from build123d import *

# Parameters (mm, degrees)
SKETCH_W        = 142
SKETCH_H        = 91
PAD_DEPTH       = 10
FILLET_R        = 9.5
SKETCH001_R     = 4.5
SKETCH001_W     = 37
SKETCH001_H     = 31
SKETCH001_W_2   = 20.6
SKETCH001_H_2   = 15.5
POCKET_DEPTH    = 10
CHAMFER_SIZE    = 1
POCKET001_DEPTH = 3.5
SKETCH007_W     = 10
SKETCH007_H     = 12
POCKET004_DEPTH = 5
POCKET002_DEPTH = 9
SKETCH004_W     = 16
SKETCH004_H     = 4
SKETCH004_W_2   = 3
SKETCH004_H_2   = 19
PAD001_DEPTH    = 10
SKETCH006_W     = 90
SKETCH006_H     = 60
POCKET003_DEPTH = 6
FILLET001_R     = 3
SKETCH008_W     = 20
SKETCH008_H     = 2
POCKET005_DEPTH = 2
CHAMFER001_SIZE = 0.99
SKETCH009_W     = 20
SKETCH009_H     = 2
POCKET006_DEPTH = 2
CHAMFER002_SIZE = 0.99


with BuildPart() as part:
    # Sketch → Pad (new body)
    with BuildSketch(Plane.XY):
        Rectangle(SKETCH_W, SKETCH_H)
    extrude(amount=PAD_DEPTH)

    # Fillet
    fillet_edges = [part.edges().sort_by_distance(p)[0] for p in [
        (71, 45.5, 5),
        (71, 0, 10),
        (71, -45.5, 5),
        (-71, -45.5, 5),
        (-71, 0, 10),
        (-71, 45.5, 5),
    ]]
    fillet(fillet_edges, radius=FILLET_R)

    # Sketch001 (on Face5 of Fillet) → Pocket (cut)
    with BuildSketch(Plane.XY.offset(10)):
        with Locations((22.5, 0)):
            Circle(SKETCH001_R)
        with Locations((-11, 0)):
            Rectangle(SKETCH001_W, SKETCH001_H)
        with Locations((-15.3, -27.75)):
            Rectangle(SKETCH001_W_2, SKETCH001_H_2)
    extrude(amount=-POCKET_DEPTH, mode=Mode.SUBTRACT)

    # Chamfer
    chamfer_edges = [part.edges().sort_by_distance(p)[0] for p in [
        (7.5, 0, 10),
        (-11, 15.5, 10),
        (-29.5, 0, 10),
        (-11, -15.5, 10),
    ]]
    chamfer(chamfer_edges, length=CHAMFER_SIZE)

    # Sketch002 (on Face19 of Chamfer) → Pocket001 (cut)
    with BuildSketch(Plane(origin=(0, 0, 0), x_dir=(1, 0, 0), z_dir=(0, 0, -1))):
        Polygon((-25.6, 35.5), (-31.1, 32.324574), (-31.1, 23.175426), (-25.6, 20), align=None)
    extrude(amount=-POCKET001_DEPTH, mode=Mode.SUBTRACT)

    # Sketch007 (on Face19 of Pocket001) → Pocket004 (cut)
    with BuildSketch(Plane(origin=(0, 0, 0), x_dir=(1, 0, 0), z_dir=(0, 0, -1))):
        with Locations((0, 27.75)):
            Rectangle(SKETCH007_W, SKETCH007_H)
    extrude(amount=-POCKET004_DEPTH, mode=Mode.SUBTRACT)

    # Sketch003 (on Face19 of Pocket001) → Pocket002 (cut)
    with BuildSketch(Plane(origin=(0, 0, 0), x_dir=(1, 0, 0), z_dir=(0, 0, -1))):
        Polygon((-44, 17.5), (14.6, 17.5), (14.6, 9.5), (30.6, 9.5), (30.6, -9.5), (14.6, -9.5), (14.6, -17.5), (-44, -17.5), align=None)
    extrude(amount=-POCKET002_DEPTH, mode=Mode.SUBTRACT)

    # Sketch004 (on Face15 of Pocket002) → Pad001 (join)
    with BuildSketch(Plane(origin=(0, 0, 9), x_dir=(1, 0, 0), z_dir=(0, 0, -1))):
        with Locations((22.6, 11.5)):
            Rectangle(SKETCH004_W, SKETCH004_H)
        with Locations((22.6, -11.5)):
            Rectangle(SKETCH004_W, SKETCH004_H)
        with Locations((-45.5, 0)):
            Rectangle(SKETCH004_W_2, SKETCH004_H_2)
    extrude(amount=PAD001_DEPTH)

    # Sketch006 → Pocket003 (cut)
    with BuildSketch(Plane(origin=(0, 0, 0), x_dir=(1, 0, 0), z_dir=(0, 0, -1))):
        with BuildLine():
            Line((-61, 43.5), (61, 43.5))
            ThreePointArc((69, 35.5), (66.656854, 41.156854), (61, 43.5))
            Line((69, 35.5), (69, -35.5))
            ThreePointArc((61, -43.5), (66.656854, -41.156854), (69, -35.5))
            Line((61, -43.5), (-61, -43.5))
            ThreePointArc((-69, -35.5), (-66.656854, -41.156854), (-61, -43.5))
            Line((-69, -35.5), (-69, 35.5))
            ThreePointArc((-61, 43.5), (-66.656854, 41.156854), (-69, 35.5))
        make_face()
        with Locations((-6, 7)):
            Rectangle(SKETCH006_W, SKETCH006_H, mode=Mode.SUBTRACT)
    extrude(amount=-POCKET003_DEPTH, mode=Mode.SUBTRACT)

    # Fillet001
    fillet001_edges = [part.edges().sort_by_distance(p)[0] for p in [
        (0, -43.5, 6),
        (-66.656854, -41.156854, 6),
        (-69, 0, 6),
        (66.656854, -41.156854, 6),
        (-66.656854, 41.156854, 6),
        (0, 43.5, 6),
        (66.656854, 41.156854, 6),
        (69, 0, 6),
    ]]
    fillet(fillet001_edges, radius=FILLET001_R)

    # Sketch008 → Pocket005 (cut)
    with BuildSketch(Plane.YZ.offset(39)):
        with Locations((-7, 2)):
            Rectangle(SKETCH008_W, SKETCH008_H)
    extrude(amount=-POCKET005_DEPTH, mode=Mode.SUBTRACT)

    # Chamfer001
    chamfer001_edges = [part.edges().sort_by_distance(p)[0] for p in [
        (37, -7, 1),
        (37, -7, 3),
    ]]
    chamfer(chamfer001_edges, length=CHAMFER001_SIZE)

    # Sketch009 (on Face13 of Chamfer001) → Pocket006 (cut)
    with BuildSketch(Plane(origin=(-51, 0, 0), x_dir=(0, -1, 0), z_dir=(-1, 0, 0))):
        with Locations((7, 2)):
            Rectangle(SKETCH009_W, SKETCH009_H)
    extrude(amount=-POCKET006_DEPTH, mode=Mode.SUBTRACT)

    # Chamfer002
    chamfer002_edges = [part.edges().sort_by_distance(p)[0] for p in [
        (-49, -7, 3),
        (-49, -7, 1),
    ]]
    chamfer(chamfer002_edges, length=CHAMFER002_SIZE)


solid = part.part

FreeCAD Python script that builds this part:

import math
import FreeCAD as App
import Part
import Sketcher
from FreeCAD import Vector
Q = App.Units.Quantity


def edges_at(feature, points):
    """Names of the edges that pass closest to the given points."""
    edges = feature.Shape.Edges
    near = lambda p: min(range(len(edges)), key=lambda i: edges[i].distToShape(Part.Vertex(*p))[0])
    return sorted({f"Edge{near(p) + 1}" for p in points})


def add_polygon(sketch, points):
    """Adds a closed chain of lines whose ends are joined by coincident constraints."""
    first, n = sketch.GeometryCount, len(points)
    for a, b in zip(points, points[1:] + points[:1]):
        sketch.addGeometry(Part.LineSegment(App.Vector(*a, 0), App.Vector(*b, 0)), False)
    for i in range(n):
        sketch.addConstraint(Sketcher.Constraint("Coincident", first + i, 2, first + (i + 1) % n, 1))

doc = App.newDocument("Part")
body = doc.addObject("PartDesign::Body", "Body")

# Sketch on XY plane
sketch1 = body.newObject("Sketcher::SketchObject", "Sketch")
sketch1.AttachmentSupport = (doc.getObject("XY_Plane"), [""])
sketch1.MapMode = "FlatFace"
add_polygon(sketch1, [(-71, 46), (-71, -46), (71, -46), (71, 46)])  # lines 0-3
sketch1.addConstraint([
    Sketcher.Constraint("Vertical", 0),
    Sketcher.Constraint("Horizontal", 1),
    Sketcher.Constraint("Vertical", 2),
    Sketcher.Constraint("Horizontal", 3),
    Sketcher.Constraint("Symmetric", 0, 2, 2, 2, -1, 1),
    Sketcher.Constraint("DistanceX", 1, 1, 1, 2, 142.0),
    Sketcher.Constraint("DistanceY", 0, 2, 0, 1, 91.0),
])
pad1 = body.newObject("PartDesign::Pad", "Pad")
pad1.Profile = sketch1
pad1.Length = 10
doc.recompute()

fillet = body.newObject("PartDesign::Fillet", "Fillet")
fillet.Base = (pad1, edges_at(pad1, [
    (71, 45.5, 5),
    (71, 0, 10),
    (71, -45.5, 5),
    (-71, -45.5, 5),
    (-71, 0, 10),
    (-71, 45.5, 5),
]))
fillet.Radius = 9.5

# Sketch on XY plane
sketch2 = body.newObject("Sketcher::SketchObject", "Sketch001")
sketch2.AttachmentSupport = (doc.getObject("XY_Plane"), [""])
sketch2.MapMode = "FlatFace"
sketch2.AttachmentOffset = App.Placement(Vector(0, 0, 10), App.Rotation())
sketch2.addGeometry(Part.Circle(Vector(22.5, 0, 0), Vector(0, 0, 1), 4.5), False)  # 0
add_polygon(sketch2, [(-29.5, 15.5), (-29.5, -15.5), (7.5, -15.5), (7.5, 15.5)])  # lines 1-4
add_polygon(sketch2, [(-25.6, -20), (-25.6, -35.5), (-5, -35.5), (-5, -20)])  # lines 5-8
sketch2.addConstraint([
    Sketcher.Constraint("Vertical", 1),
    Sketcher.Constraint("Horizontal", 2),
    Sketcher.Constraint("Vertical", 3),
    Sketcher.Constraint("Horizontal", 4),
    Sketcher.Constraint("Vertical", 5),
    Sketcher.Constraint("Horizontal", 6),
    Sketcher.Constraint("Vertical", 7),
    Sketcher.Constraint("Horizontal", 8),
    Sketcher.Constraint("PointOnObject", 0, 3, -1),
    Sketcher.Constraint("Diameter", 0, 9.0),
    Sketcher.Constraint("DistanceX", 2, 1, 2, 2, 37.0),
    Sketcher.Constraint("DistanceY", 1, 2, 1, 1, 31.0),
    Sketcher.Constraint("DistanceX", 6, 1, 6, 2, 20.6),
    Sketcher.Constraint("DistanceY", 5, 2, 5, 1, 15.5),
    Sketcher.Constraint("DistanceX", 6, 2, -1, 1, 5.0),
    Sketcher.Constraint("DistanceY", 7, 2, -1, 1, 20.0),
    Sketcher.Constraint("DistanceX", 1, 2, 0, 3, 52.0),
    Sketcher.Constraint("DistanceY", 5, 2, 1, 2, 20.0),
    Sketcher.Constraint("DistanceX", -1, 1, 0, 3, 22.5),
])
pocket1 = body.newObject("PartDesign::Pocket", "Pocket")
pocket1.Profile = sketch2
pocket1.Length = 10
doc.recompute()

chamfer = body.newObject("PartDesign::Chamfer", "Chamfer")
chamfer.Base = (pocket1, edges_at(pocket1, [
    (7.5, 0, 10),
    (-11, 15.5, 10),
    (-29.5, 0, 10),
    (-11, -15.5, 10),
]))
chamfer.Size = 1

# Sketch on XY plane
sketch3 = body.newObject("Sketcher::SketchObject", "Sketch002")
sketch3.AttachmentSupport = (doc.getObject("XY_Plane"), [""])
sketch3.MapMode = "FlatFace"
add_polygon(sketch3, [(-26, -36), (-31, -32), (-31, -23), (-26, -20)])  # lines 0-3
sketch3.addConstraint([
    Sketcher.Constraint("Vertical", 1),
    Sketcher.Constraint("Vertical", 3),
    Sketcher.Constraint("Equal", 0, 2),
    Sketcher.Constraint("Angle", 0, Q("150.000004 deg")),
    Sketcher.Constraint("DistanceY", 3, 2, 3, 1, 15.5),
    Sketcher.Constraint("DistanceY", 2, 2, -1, 1, 20.0),
    Sketcher.Constraint("DistanceX", 0, 2, -1, 1, 31.1),
    Sketcher.Constraint("DistanceX", 2, 2, -1, 1, 25.6),
])
pocket2 = body.newObject("PartDesign::Pocket", "Pocket001")
pocket2.Profile = sketch3
pocket2.Length = 3.5
pocket2.Reversed = True

# Sketch on XY plane
sketch4 = body.newObject("Sketcher::SketchObject", "Sketch003")
sketch4.AttachmentSupport = (doc.getObject("XY_Plane"), [""])
sketch4.MapMode = "FlatFace"
add_polygon(sketch4, [(-5, -34), (-5, -22), (5, -22), (5, -34)])  # lines 0-3
sketch4.addConstraint([
    Sketcher.Constraint("Vertical", 0),
    Sketcher.Constraint("Horizontal", 1),
    Sketcher.Constraint("Vertical", 2),
    Sketcher.Constraint("Horizontal", 3),
    Sketcher.Constraint("DistanceX", 1, 1, 1, 2, 10.0),
    Sketcher.Constraint("DistanceY", 0, 1, 0, 2, 12.0),
    Sketcher.Constraint("DistanceX", 0, 2, -1, 1, 5.0),
    Sketcher.Constraint("DistanceY", 0, 2, -1, 1, 21.75),
])
pocket3 = body.newObject("PartDesign::Pocket", "Pocket002")
pocket3.Profile = sketch4
pocket3.Length = 5
pocket3.Reversed = True

# Sketch on XY plane
sketch5 = body.newObject("Sketcher::SketchObject", "Sketch004")
sketch5.AttachmentSupport = (doc.getObject("XY_Plane"), [""])
sketch5.MapMode = "FlatFace"
add_polygon(sketch5, [(15, -18), (-44, -18), (-44, 18), (15, 18), (15, 10), (31, 10), (31, -10), (15, -10)])  # lines 0-7
sketch5.addConstraint([
    Sketcher.Constraint("Horizontal", 0),
    Sketcher.Constraint("Vertical", 1),
    Sketcher.Constraint("Horizontal", 2),
    Sketcher.Constraint("Vertical", 3),
    Sketcher.Constraint("Horizontal", 4),
    Sketcher.Constraint("Vertical", 5),
    Sketcher.Constraint("Horizontal", 6),
    Sketcher.Constraint("Vertical", 7),
    Sketcher.Constraint("Symmetric", 3, 2, 6, 2, -1),
    Sketcher.Constraint("Equal", 3, 7),
    Sketcher.Constraint("DistanceX", 4, 1, 4, 2, 16.0),
    Sketcher.Constraint("DistanceY", 1, 1, 1, 2, 35.0),
    Sketcher.Constraint("DistanceY", 3, 2, 3, 1, 8.0),
    Sketcher.Constraint("DistanceX", 0, 2, 0, 1, 58.6),
    Sketcher.Constraint("DistanceX", 0, 2, -1, 1, 44.0),
])
pocket4 = body.newObject("PartDesign::Pocket", "Pocket003")
pocket4.Profile = sketch5
pocket4.Length = 9
pocket4.Reversed = True

# Sketch on XY plane
sketch6 = body.newObject("Sketcher::SketchObject", "Sketch005")
sketch6.AttachmentSupport = (doc.getObject("XY_Plane"), [""])
sketch6.MapMode = "FlatFace"
sketch6.AttachmentOffset = App.Placement(Vector(0, 0, 9), App.Rotation())
add_polygon(sketch6, [(14.6, -13.5), (14.6, -9.5), (30.6, -9.5), (30.6, -13.5)])  # lines 0-3
add_polygon(sketch6, [(14.6, 9.5), (14.6, 13.5), (30.6, 13.5), (30.6, 9.5)])  # lines 4-7
add_polygon(sketch6, [(-47, -9.5), (-47, 9.5), (-44, 9.5), (-44, -9.5)])  # lines 8-11
sketch6.addConstraint([
    Sketcher.Constraint("Vertical", 0),
    Sketcher.Constraint("Horizontal", 1),
    Sketcher.Constraint("Vertical", 2),
    Sketcher.Constraint("Horizontal", 3),
    Sketcher.Constraint("Vertical", 4),
    Sketcher.Constraint("Horizontal", 5),
    Sketcher.Constraint("Vertical", 6),
    Sketcher.Constraint("Horizontal", 7),
    Sketcher.Constraint("Vertical", 8),
    Sketcher.Constraint("Horizontal", 9),
    Sketcher.Constraint("Vertical", 10),
    Sketcher.Constraint("Horizontal", 11),
    Sketcher.Constraint("Symmetric", 3, 2, 4, 2, -1),
    Sketcher.Constraint("Symmetric", 1, 2, 6, 2, -1),
    Sketcher.Constraint("Horizontal", 7, 2, 8, 2),
    Sketcher.Constraint("Horizontal", 1, 2, 10, 2),
    Sketcher.Constraint("DistanceX", 1, 1, 1, 2, 16.0),
    Sketcher.Constraint("DistanceX", 9, 1, 9, 2, 3.0),
    Sketcher.Constraint("DistanceY", 0, 1, 0, 2, 4.0),
    Sketcher.Constraint("DistanceY", 8, 1, 8, 2, 19.0),
    Sketcher.Constraint("DistanceX", 8, 2, -1, 1, 47.0),
    Sketcher.Constraint("DistanceX", -1, 1, 0, 2, 14.6),
])
pad2 = body.newObject("PartDesign::Pad", "Pad001")
pad2.Profile = sketch6
pad2.Length = 10
pad2.Reversed = True

# Sketch on XY plane
sketch7 = body.newObject("Sketcher::SketchObject", "Sketch006")
sketch7.AttachmentSupport = (doc.getObject("XY_Plane"), [""])
sketch7.MapMode = "FlatFace"
sketch7.addGeometry(Part.LineSegment(Vector(61, -44, 0), Vector(-61, -44, 0)), False)  # 0
sketch7.addGeometry(Part.ArcOfCircle(Part.Circle(Vector(-61, -35, 0), Vector(0, 0, 1), 8), math.radians(-180), math.radians(-90)), False)  # 1
sketch7.addGeometry(Part.LineSegment(Vector(-69, -36, 0), Vector(-69, 36, 0)), False)  # 2
sketch7.addGeometry(Part.ArcOfCircle(Part.Circle(Vector(-61, 35, 0), Vector(0, 0, 1), 8), math.radians(90), math.radians(180)), False)  # 3
sketch7.addGeometry(Part.LineSegment(Vector(-61, 44, 0), Vector(61, 44, 0)), False)  # 4
sketch7.addGeometry(Part.ArcOfCircle(Part.Circle(Vector(61, 35, 0), Vector(0, 0, 1), 8), math.radians(0), math.radians(90)), False)  # 5
sketch7.addGeometry(Part.LineSegment(Vector(69, 36, 0), Vector(69, -36, 0)), False)  # 6
sketch7.addGeometry(Part.ArcOfCircle(Part.Circle(Vector(61, -35, 0), Vector(0, 0, 1), 8), math.radians(-90), math.radians(0)), False)  # 7
add_polygon(sketch7, [(-51, 23), (-51, -37), (39, -37), (39, 23)])  # lines 8-11
sketch7.addConstraint([
    Sketcher.Constraint("Tangent", 0, 2, 1, 2),
    Sketcher.Constraint("Tangent", 1, 1, 2, 1),
    Sketcher.Constraint("Tangent", 2, 2, 3, 2),
    Sketcher.Constraint("Tangent", 3, 1, 4, 1),
    Sketcher.Constraint("Tangent", 4, 2, 5, 2),
    Sketcher.Constraint("Tangent", 5, 1, 6, 1),
    Sketcher.Constraint("Tangent", 6, 2, 7, 2),
    Sketcher.Constraint("Tangent", 7, 1, 0, 1),
    Sketcher.Constraint("Horizontal", 0),
    Sketcher.Constraint("Vertical", 2),
    Sketcher.Constraint("Horizontal", 4),
    Sketcher.Constraint("Vertical", 6),
    Sketcher.Constraint("Vertical", 8),
    Sketcher.Constraint("Horizontal", 9),
    Sketcher.Constraint("Vertical", 10),
    Sketcher.Constraint("Horizontal", 11),
    Sketcher.Constraint("Equal", 1, 3),
    Sketcher.Constraint("Equal", 3, 5),
    Sketcher.Constraint("Equal", 5, 7),
    Sketcher.Constraint("Symmetric", 1, 3, 5, 3, -1, 1),
    Sketcher.Constraint("Radius", 1, 8.000001),
    Sketcher.Constraint("DistanceX", 0, 2, 0, 1, 122.0),
    Sketcher.Constraint("DistanceX", 9, 1, 9, 2, 90.0),
    Sketcher.Constraint("DistanceY", 2, 1, 2, 2, 71.0),
    Sketcher.Constraint("DistanceY", 8, 2, 8, 1, 60.0),
    Sketcher.Constraint("DistanceX", 8, 2, -1, 1, 51.0),
    Sketcher.Constraint("DistanceY", 8, 2, -1, 1, 37.0),
])
pocket5 = body.newObject("PartDesign::Pocket", "Pocket004")
pocket5.Profile = sketch7
pocket5.Length = 6
pocket5.Reversed = True
doc.recompute()

fillet2 = body.newObject("PartDesign::Fillet", "Fillet001")
fillet2.Base = (pocket5, edges_at(pocket5, [
    (0, -43.5, 6),
    (-66.657, -41.157, 6),
    (-69, 0, 6),
    (66.657, -41.157, 6),
    (-66.657, 41.157, 6),
    (0, 43.5, 6),
    (66.657, 41.157, 6),
    (69, 0, 6),
]))
fillet2.Radius = 3

# Sketch on YZ plane
sketch8 = body.newObject("Sketcher::SketchObject", "Sketch007")
sketch8.AttachmentSupport = (doc.getObject("YZ_Plane"), [""])
sketch8.MapMode = "FlatFace"
sketch8.AttachmentOffset = App.Placement(Vector(0, 0, 39), App.Rotation())
add_polygon(sketch8, [(-17, 3), (-17, 1), (3, 1), (3, 3)])  # lines 0-3
sketch8.addConstraint([
    Sketcher.Constraint("Vertical", 0),
    Sketcher.Constraint("Horizontal", 1),
    Sketcher.Constraint("Vertical", 2),
    Sketcher.Constraint("Horizontal", 3),
    Sketcher.Constraint("DistanceX", 1, 1, 1, 2, 20.0),
    Sketcher.Constraint("DistanceY", 0, 2, 0, 1, 2.0),
    Sketcher.Constraint("DistanceX", 0, 2, -1, 1, 17.0),
    Sketcher.Constraint("DistanceY", -1, 1, 0, 2, 1.0),
])
pocket6 = body.newObject("PartDesign::Pocket", "Pocket005")
pocket6.Profile = sketch8
pocket6.Length = 2
doc.recompute()

chamfer2 = body.newObject("PartDesign::Chamfer", "Chamfer001")
chamfer2.Base = (pocket6, edges_at(pocket6, [(37, -7, 1), (37, -7, 3)]))
chamfer2.Size = 0.99

# Sketch on YZ plane
sketch9 = body.newObject("Sketcher::SketchObject", "Sketch008")
sketch9.AttachmentSupport = (doc.getObject("YZ_Plane"), [""])
sketch9.MapMode = "FlatFace"
sketch9.AttachmentOffset = App.Placement(Vector(0, 0, -51), App.Rotation())
add_polygon(sketch9, [(3, 3), (3, 1), (-17, 1), (-17, 3)])  # lines 0-3
sketch9.addConstraint([
    Sketcher.Constraint("Vertical", 0),
    Sketcher.Constraint("Horizontal", 1),
    Sketcher.Constraint("Vertical", 2),
    Sketcher.Constraint("Horizontal", 3),
    Sketcher.Constraint("DistanceX", 1, 2, 1, 1, 20.0),
    Sketcher.Constraint("DistanceY", 0, 2, 0, 1, 2.0),
    Sketcher.Constraint("DistanceX", -1, 1, 0, 2, 3.0),
    Sketcher.Constraint("DistanceY", -1, 1, 0, 2, 1.0),
])
pocket7 = body.newObject("PartDesign::Pocket", "Pocket006")
pocket7.Profile = sketch9
pocket7.Length = 2
pocket7.Reversed = True
doc.recompute()

chamfer3 = body.newObject("PartDesign::Chamfer", "Chamfer002")
chamfer3.Base = (pocket7, edges_at(pocket7, [(-49, -7, 3), (-49, -7, 1)]))
chamfer3.Size = 0.99

doc.recompute()
